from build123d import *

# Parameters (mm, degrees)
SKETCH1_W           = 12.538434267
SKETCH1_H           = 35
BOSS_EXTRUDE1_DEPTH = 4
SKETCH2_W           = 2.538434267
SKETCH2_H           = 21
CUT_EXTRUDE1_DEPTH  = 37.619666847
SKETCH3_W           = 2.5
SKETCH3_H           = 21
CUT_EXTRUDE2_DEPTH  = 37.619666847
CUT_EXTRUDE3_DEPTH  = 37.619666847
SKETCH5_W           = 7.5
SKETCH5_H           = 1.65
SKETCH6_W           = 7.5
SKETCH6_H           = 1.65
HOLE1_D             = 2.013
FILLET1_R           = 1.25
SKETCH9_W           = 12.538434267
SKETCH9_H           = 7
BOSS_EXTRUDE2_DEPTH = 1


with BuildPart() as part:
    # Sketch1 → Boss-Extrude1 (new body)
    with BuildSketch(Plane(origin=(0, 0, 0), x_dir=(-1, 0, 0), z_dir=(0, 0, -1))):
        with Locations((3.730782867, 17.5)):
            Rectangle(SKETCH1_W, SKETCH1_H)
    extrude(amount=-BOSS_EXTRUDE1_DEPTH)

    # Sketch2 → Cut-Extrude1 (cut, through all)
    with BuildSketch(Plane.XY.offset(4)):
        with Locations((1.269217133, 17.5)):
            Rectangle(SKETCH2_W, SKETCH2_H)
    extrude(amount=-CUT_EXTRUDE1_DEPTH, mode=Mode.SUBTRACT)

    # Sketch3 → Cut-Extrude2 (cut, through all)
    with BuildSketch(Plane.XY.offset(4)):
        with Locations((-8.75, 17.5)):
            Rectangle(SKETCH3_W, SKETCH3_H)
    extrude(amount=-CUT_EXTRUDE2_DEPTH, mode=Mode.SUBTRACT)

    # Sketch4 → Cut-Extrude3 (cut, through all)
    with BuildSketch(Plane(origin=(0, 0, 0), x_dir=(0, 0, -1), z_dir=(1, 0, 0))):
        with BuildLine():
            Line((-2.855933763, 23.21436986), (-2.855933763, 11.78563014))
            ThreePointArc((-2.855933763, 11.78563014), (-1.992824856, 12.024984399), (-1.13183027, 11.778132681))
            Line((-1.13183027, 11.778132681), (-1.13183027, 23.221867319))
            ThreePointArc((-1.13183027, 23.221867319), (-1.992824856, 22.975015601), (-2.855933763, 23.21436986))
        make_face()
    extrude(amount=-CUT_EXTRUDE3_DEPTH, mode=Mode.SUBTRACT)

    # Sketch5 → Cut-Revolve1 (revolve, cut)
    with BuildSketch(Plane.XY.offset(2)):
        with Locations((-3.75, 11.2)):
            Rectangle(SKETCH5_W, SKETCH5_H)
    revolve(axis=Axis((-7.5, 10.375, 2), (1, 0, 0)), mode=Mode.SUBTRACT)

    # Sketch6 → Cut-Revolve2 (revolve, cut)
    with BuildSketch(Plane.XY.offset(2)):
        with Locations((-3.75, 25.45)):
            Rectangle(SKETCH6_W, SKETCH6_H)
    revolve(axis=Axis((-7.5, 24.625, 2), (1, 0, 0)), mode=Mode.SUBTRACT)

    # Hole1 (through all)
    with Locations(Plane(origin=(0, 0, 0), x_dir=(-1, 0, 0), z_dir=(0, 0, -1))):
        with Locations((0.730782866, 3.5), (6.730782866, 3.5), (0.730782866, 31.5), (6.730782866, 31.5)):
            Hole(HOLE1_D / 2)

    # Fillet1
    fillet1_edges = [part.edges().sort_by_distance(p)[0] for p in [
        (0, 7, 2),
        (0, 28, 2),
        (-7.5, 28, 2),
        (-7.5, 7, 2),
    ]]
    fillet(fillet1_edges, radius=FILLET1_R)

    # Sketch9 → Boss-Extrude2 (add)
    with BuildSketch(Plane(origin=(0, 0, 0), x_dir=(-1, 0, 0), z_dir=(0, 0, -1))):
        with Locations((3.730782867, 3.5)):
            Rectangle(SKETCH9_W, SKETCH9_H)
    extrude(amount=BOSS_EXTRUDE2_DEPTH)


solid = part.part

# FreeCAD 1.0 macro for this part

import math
import FreeCAD as App
import Part
import Sketcher

V = App.Vector


def edges_at(feature, points):
    """Names of the edges that pass closest to the given points."""
    edges = feature.Shape.Edges
    near = lambda p: min(range(len(edges)), key=lambda i: edges[i].distToShape(Part.Vertex(*p))[0])
    return sorted({f"Edge{near(p) + 1}" for p in points})

doc = App.newDocument("Part")
body = doc.addObject("PartDesign::Body", "Body")

# Sketch on XY plane
sketch1 = body.newObject("Sketcher::SketchObject", "Sketch")
sketch1.AttachmentSupport = (doc.getObject("XY_Plane"), [""])
sketch1.MapMode = "FlatFace"
sketch1.addGeometry([
    Part.LineSegment(V(2.538434, 35, 0), V(2.538434, 0, 0)),
    Part.LineSegment(V(2.538434, 0, 0), V(-10, 0, 0)),
    Part.LineSegment(V(-10, 0, 0), V(-10, 35, 0)),
    Part.LineSegment(V(-10, 35, 0), V(2.538434, 35, 0)),
], False)
sketch1.addConstraint([
    Sketcher.Constraint("Coincident", 0, 2, 1, 1),
    Sketcher.Constraint("Coincident", 1, 2, 2, 1),
    Sketcher.Constraint("Coincident", 2, 2, 3, 1),
    Sketcher.Constraint("Coincident", 3, 2, 0, 1),
    Sketcher.Constraint("Vertical", 0),
    Sketcher.Constraint("Horizontal", 1),
    Sketcher.Constraint("Vertical", 2),
    Sketcher.Constraint("Horizontal", 3),
    Sketcher.Constraint("PointOnObject", 0, 2, -1),
    Sketcher.Constraint("DistanceY", 0, 2, 0, 1, 35.0),
    Sketcher.Constraint("DistanceX", 1, 2, -1, 1, 10.0),
    Sketcher.Constraint("DistanceX", 1, 2, 1, 1, 12.538434),
])
pad1 = body.newObject("PartDesign::Pad", "Pad")
pad1.Profile = sketch1
pad1.Length = 4

# Sketch on XY plane
sketch2 = body.newObject("Sketcher::SketchObject", "Sketch001")
sketch2.AttachmentSupport = (doc.getObject("XY_Plane"), [""])
sketch2.MapMode = "FlatFace"
sketch2.AttachmentOffset = App.Placement(V(0, 0, 4), App.Rotation())
sketch2.addGeometry([
    Part.LineSegment(V(0, 28, 0), V(0, 7, 0)),
    Part.LineSegment(V(0, 7, 0), V(2.538434, 7, 0)),
    Part.LineSegment(V(2.538434, 7, 0), V(2.538434, 28, 0)),
    Part.LineSegment(V(2.538434, 28, 0), V(0, 28, 0)),
], False)
sketch2.addConstraint([
    Sketcher.Constraint("Coincident", 0, 2, 1, 1),
    Sketcher.Constraint("Coincident", 1, 2, 2, 1),
    Sketcher.Constraint("Coincident", 2, 2, 3, 1),
    Sketcher.Constraint("Coincident", 3, 2, 0, 1),
    Sketcher.Constraint("Vertical", 0),
    Sketcher.Constraint("Horizontal", 1),
    Sketcher.Constraint("Vertical", 2),
    Sketcher.Constraint("Horizontal", 3),
    Sketcher.Constraint("PointOnObject", 0, 2, -2),
    Sketcher.Constraint("DistanceY", 0, 2, 0, 1, 21.0),
    Sketcher.Constraint("DistanceY", -1, 1, 0, 2, 7.0),
    Sketcher.Constraint("DistanceX", 1, 1, 1, 2, 2.538434),
])
pocket1 = body.newObject("PartDesign::Pocket", "Pocket")
pocket1.Profile = sketch2
pocket1.Type = "ThroughAll"

# Sketch on XY plane
sketch3 = body.newObject("Sketcher::SketchObject", "Sketch002")
sketch3.AttachmentSupport = (doc.getObject("XY_Plane"), [""])
sketch3.MapMode = "FlatFace"
sketch3.AttachmentOffset = App.Placement(V(0, 0, 4), App.Rotation())
sketch3.addGeometry([
    Part.LineSegment(V(-10, 28, 0), V(-10, 7, 0)),
    Part.LineSegment(V(-10, 7, 0), V(-7.5, 7, 0)),
    Part.LineSegment(V(-7.5, 7, 0), V(-7.5, 28, 0)),
    Part.LineSegment(V(-7.5, 28, 0), V(-10, 28, 0)),
], False)
sketch3.addConstraint([
    Sketcher.Constraint("Coincident", 0, 2, 1, 1),
    Sketcher.Constraint("Coincident", 1, 2, 2, 1),
    Sketcher.Constraint("Coincident", 2, 2, 3, 1),
    Sketcher.Constraint("Coincident", 3, 2, 0, 1),
    Sketcher.Constraint("Vertical", 0),
    Sketcher.Constraint("Horizontal", 1),
    Sketcher.Constraint("Vertical", 2),
    Sketcher.Constraint("Horizontal", 3),
    Sketcher.Constraint("DistanceY", 0, 2, 0, 1, 21.0),
    Sketcher.Constraint("DistanceX", 1, 1, 1, 2, 2.5),
    Sketcher.Constraint("DistanceX", 0, 2, -1, 1, 10.0),
    Sketcher.Constraint("DistanceY", -1, 1, 0, 2, 7.0),
])
pocket2 = body.newObject("PartDesign::Pocket", "Pocket001")
pocket2.Profile = sketch3
pocket2.Type = "ThroughAll"

# Sketch on YZ plane
sketch4 = body.newObject("Sketcher::SketchObject", "Sketch003")
sketch4.AttachmentSupport = (doc.getObject("YZ_Plane"), [""])
sketch4.MapMode = "FlatFace"
sketch4.addGeometry([
    Part.LineSegment(V(23.21437, 2.855934, 0), V(11.78563, 2.855934, 0)),
    Part.ArcOfCircle(Part.Circle(V(10.375, 2, 0), V(0, 0, 1), 1.65), math.radians(-31.746601), math.radians(31.24829)),
    Part.LineSegment(V(11.778133, 1.13183, 0), V(23.221867, 1.13183, 0)),
    Part.ArcOfCircle(Part.Circle(V(24.625, 2, 0), V(0, 0, 1), 1.65), math.radians(148.75171), math.radians(211.746601)),
], False)
sketch4.addConstraint([
    Sketcher.Constraint("Coincident", 0, 2, 1, 2),
    Sketcher.Constraint("Coincident", 1, 1, 2, 1),
    Sketcher.Constraint("Coincident", 2, 2, 3, 2),
    Sketcher.Constraint("Coincident", 3, 1, 0, 1),
    Sketcher.Constraint("Horizontal", 0),
    Sketcher.Constraint("Horizontal", 2),
    Sketcher.Constraint("Equal", 1, 3),
    Sketcher.Constraint("Horizontal", 1, 3, 3, 3),
    Sketcher.Constraint("Radius", 1, 1.65),
    Sketcher.Constraint("DistanceY", -1, 1, 1, 3, 2.0),
    Sketcher.Constraint("DistanceX", 1, 3, 3, 3, 14.25),
    Sketcher.Constraint("DistanceX", -1, 1, 1, 3, 10.375),
    Sketcher.Constraint("DistanceX", 0, 2, 0, 1, 11.42874),
    Sketcher.Constraint("DistanceX", 2, 1, 2, 2, 11.443735),
])
pocket3 = body.newObject("PartDesign::Pocket", "Pocket002")
pocket3.Profile = sketch4
pocket3.Type = "ThroughAll"

# Sketch on XY plane
sketch5 = body.newObject("Sketcher::SketchObject", "Sketch004")
sketch5.AttachmentSupport = (doc.getObject("XY_Plane"), [""])
sketch5.MapMode = "FlatFace"
sketch5.AttachmentOffset = App.Placement(V(0, 0, 2), App.Rotation())
sketch5.addGeometry([
    Part.LineSegment(V(-7.5, 12.025, 0), V(-7.5, 10.375, 0)),
    Part.LineSegment(V(-7.5, 10.375, 0), V(0, 10.375, 0)),
    Part.LineSegment(V(0, 10.375, 0), V(0, 12.025, 0)),
    Part.LineSegment(V(0, 12.025, 0), V(-7.5, 12.025, 0)),
], False)
sketch5.addGeometry(Part.LineSegment(V(-7.5, 10.375, 0), V(0, 10.375, 0)), True)  # axis
sketch5.addConstraint([
    Sketcher.Constraint("Coincident", 0, 2, 1, 1),
    Sketcher.Constraint("Coincident", 1, 2, 2, 1),
    Sketcher.Constraint("Coincident", 2, 2, 3, 1),
    Sketcher.Constraint("Coincident", 3, 2, 0, 1),
    Sketcher.Constraint("Vertical", 0),
    Sketcher.Constraint("Horizontal", 1),
    Sketcher.Constraint("Vertical", 2),
    Sketcher.Constraint("Horizontal", 3),
    Sketcher.Constraint("Horizontal", 4),
    Sketcher.Constraint("Coincident", 4, 1, 0, 2),
    Sketcher.Constraint("PointOnObject", 1, 2, -2),
    Sketcher.Constraint("PointOnObject", 4, 2, -2),
    Sketcher.Constraint("DistanceX", 1, 1, 1, 2, 7.5),
    Sketcher.Constraint("DistanceY", 0, 2, 0, 1, 1.65),
    Sketcher.Constraint("DistanceY", -1, 1, 0, 2, 10.375),
])
groove = body.newObject("PartDesign::Groove", "Groove")
groove.Profile = sketch5
groove.ReferenceAxis = (sketch5, ["Axis0"])
groove.Angle = 360

# Sketch on XY plane
sketch6 = body.newObject("Sketcher::SketchObject", "Sketch005")
sketch6.AttachmentSupport = (doc.getObject("XY_Plane"), [""])
sketch6.MapMode = "FlatFace"
sketch6.AttachmentOffset = App.Placement(V(0, 0, 2), App.Rotation())
sketch6.addGeometry([
    Part.LineSegment(V(-7.5, 26.275, 0), V(-7.5, 24.625, 0)),
    Part.LineSegment(V(-7.5, 24.625, 0), V(0, 24.625, 0)),
    Part.LineSegment(V(0, 24.625, 0), V(0, 26.275, 0)),
    Part.LineSegment(V(0, 26.275, 0), V(-7.5, 26.275, 0)),
], False)
sketch6.addGeometry(Part.LineSegment(V(-7.5, 24.625, 0), V(0, 24.625, 0)), True)  # axis
sketch6.addConstraint([
    Sketcher.Constraint("Coincident", 0, 2, 1, 1),
    Sketcher.Constraint("Coincident", 1, 2, 2, 1),
    Sketcher.Constraint("Coincident", 2, 2, 3, 1),
    Sketcher.Constraint("Coincident", 3, 2, 0, 1),
    Sketcher.Constraint("Vertical", 0),
    Sketcher.Constraint("Horizontal", 1),
    Sketcher.Constraint("Vertical", 2),
    Sketcher.Constraint("Horizontal", 3),
    Sketcher.Constraint("Horizontal", 4),
    Sketcher.Constraint("Coincident", 4, 1, 0, 2),
    Sketcher.Constraint("PointOnObject", 1, 2, -2),
    Sketcher.Constraint("PointOnObject", 4, 2, -2),
    Sketcher.Constraint("DistanceX", 1, 1, 1, 2, 7.5),
    Sketcher.Constraint("DistanceY", 0, 2, 0, 1, 1.65),
    Sketcher.Constraint("DistanceY", -1, 1, 0, 2, 24.625),
])
groove2 = body.newObject("PartDesign::Groove", "Groove001")
groove2.Profile = sketch6
groove2.ReferenceAxis = (sketch6, ["Axis0"])
groove2.Angle = 360

# Sketch on XY plane
sketch7 = body.newObject("Sketcher::SketchObject", "Sketch006")
sketch7.AttachmentSupport = (doc.getObject("XY_Plane"), [""])
sketch7.MapMode = "FlatFace"
sketch7.addGeometry([
    Part.Circle(V(-0.730783, 3.5, 0), V(0, 0, 1), 1.0065),
    Part.Circle(V(-6.730783, 3.5, 0), V(0, 0, 1), 1.0065),
    Part.Circle(V(-0.730783, 31.5, 0), V(0, 0, 1), 1.0065),
    Part.Circle(V(-6.730783, 31.5, 0), V(0, 0, 1), 1.0065),
], False)
sketch7.addConstraint([
    Sketcher.Constraint("Equal", 0, 1),
    Sketcher.Constraint("Equal", 1, 2),
    Sketcher.Constraint("Equal", 2, 3),
    Sketcher.Constraint("Horizontal", 0, 3, 1, 3),
    Sketcher.Constraint("Horizontal", 2, 3, 3, 3),
    Sketcher.Constraint("Vertical", 0, 3, 2, 3),
    Sketcher.Constraint("Vertical", 1, 3, 3, 3),
    Sketcher.Constraint("Diameter", 0, 2.013),
    Sketcher.Constraint("DistanceX", 1, 3, 0, 3, 6.0),
    Sketcher.Constraint("DistanceY", 0, 3, 2, 3, 28.0),
    Sketcher.Constraint("DistanceY", -1, 1, 0, 3, 3.5),
    Sketcher.Constraint("DistanceX", 0, 3, -1, 1, 0.730783),
])
doc.recompute()
hole = body.newObject("PartDesign::Hole", "Hole")
hole.Profile = sketch7
hole.ThreadType = "None"
hole.Diameter = 2.013
hole.DepthType = "ThroughAll"
hole.Reversed = True
doc.recompute()

fillet = body.newObject("PartDesign::Fillet", "Fillet")
fillet.Base = (hole, edges_at(hole, [
    (0, 7, 2),
    (0, 28, 2),
    (-7.5, 28, 2),
    (-7.5, 7, 2),
]))
fillet.Radius = 1.25

# Sketch on XY plane
sketch8 = body.newObject("Sketcher::SketchObject", "Sketch007")
sketch8.AttachmentSupport = (doc.getObject("XY_Plane"), [""])
sketch8.MapMode = "FlatFace"
sketch8.addGeometry([
    Part.LineSegment(V(2.538434, 7, 0), V(2.538434, 0, 0)),
    Part.LineSegment(V(2.538434, 0, 0), V(-10, 0, 0)),
    Part.LineSegment(V(-10, 0, 0), V(-10, 7, 0)),
    Part.LineSegment(V(-10, 7, 0), V(2.538434, 7, 0)),
], False)
sketch8.addConstraint([
    Sketcher.Constraint("Coincident", 0, 2, 1, 1),
    Sketcher.Constraint("Coincident", 1, 2, 2, 1),
    Sketcher.Constraint("Coincident", 2, 2, 3, 1),
    Sketcher.Constraint("Coincident", 3, 2, 0, 1),
    Sketcher.Constraint("Vertical", 0),
    Sketcher.Constraint("Horizontal", 1),
    Sketcher.Constraint("Vertical", 2),
    Sketcher.Constraint("Horizontal", 3),
    Sketcher.Constraint("PointOnObject", 0, 2, -1),
    Sketcher.Constraint("DistanceY", 0, 2, 0, 1, 7.0),
    Sketcher.Constraint("DistanceX", 1, 2, -1, 1, 10.0),
    Sketcher.Constraint("DistanceX", 1, 2, 1, 1, 12.538434),
])
pad2 = body.newObject("PartDesign::Pad", "Pad001")
pad2.Profile = sketch8
pad2.Length = 1
pad2.Reversed = True

doc.recompute()
